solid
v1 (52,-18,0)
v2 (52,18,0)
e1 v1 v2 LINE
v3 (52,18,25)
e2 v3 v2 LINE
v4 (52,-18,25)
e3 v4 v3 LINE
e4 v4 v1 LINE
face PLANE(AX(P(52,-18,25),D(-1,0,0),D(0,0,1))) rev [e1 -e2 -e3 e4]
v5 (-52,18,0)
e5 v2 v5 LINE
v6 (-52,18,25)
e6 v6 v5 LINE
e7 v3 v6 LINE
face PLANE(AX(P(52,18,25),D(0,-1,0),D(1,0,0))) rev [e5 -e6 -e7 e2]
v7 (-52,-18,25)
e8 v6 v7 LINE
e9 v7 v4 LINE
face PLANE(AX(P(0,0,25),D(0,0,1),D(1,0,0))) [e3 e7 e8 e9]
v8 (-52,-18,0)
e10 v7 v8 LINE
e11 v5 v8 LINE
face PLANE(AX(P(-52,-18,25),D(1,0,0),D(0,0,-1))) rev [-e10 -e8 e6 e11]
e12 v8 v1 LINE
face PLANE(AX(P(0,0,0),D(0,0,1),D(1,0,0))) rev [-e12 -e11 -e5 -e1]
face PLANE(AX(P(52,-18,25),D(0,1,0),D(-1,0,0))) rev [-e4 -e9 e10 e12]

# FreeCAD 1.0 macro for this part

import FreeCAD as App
import Part
import Sketcher

V = App.Vector
Q = App.Units.Quantity


def add_polygon(sketch, points):
    """Adds a closed chain of lines whose ends are joined by coincident constraints."""
    first, n = sketch.GeometryCount, len(points)
    for a, b in zip(points, points[1:] + points[:1]):
        sketch.addGeometry(Part.LineSegment(App.Vector(*a, 0), App.Vector(*b, 0)), False)
    for i in range(n):
        sketch.addConstraint(Sketcher.Constraint("Coincident", first + i, 2, first + (i + 1) % n, 1))

doc = App.newDocument("Part")
body = doc.addObject("PartDesign::Body", "Body")

sketch1 = body.newObject("Sketcher::SketchObject", "Sketch")
sketch1.AttachmentSupport = (doc.getObject("XY_Plane"), [""])
sketch1.MapMode = "FlatFace"
add_polygon(sketch1, [(-52, 18), (-52, -18), (52, -18), (52, 18)])
sketch1.addConstraint(Sketcher.Constraint("Vertical", 0))
sketch1.addConstraint(Sketcher.Constraint("Horizontal", 1))
sketch1.addConstraint(Sketcher.Constraint("Vertical", 2))
sketch1.addConstraint(Sketcher.Constraint("Horizontal", 3))
sketch1.addConstraint(Sketcher.Constraint("Symmetric", 0, 2, 2, 2, -1, 1))
sketch1.addConstraint(Sketcher.Constraint("DistanceX", 1, 1, 1, 2, Q("104 mm")))
sketch1.addConstraint(Sketcher.Constraint("DistanceY", 0, 2, 0, 1, Q("36 mm")))
pad1 = body.newObject("PartDesign::Pad", "Pad")
pad1.Profile = sketch1
pad1.Length = 25

doc.recompute()
